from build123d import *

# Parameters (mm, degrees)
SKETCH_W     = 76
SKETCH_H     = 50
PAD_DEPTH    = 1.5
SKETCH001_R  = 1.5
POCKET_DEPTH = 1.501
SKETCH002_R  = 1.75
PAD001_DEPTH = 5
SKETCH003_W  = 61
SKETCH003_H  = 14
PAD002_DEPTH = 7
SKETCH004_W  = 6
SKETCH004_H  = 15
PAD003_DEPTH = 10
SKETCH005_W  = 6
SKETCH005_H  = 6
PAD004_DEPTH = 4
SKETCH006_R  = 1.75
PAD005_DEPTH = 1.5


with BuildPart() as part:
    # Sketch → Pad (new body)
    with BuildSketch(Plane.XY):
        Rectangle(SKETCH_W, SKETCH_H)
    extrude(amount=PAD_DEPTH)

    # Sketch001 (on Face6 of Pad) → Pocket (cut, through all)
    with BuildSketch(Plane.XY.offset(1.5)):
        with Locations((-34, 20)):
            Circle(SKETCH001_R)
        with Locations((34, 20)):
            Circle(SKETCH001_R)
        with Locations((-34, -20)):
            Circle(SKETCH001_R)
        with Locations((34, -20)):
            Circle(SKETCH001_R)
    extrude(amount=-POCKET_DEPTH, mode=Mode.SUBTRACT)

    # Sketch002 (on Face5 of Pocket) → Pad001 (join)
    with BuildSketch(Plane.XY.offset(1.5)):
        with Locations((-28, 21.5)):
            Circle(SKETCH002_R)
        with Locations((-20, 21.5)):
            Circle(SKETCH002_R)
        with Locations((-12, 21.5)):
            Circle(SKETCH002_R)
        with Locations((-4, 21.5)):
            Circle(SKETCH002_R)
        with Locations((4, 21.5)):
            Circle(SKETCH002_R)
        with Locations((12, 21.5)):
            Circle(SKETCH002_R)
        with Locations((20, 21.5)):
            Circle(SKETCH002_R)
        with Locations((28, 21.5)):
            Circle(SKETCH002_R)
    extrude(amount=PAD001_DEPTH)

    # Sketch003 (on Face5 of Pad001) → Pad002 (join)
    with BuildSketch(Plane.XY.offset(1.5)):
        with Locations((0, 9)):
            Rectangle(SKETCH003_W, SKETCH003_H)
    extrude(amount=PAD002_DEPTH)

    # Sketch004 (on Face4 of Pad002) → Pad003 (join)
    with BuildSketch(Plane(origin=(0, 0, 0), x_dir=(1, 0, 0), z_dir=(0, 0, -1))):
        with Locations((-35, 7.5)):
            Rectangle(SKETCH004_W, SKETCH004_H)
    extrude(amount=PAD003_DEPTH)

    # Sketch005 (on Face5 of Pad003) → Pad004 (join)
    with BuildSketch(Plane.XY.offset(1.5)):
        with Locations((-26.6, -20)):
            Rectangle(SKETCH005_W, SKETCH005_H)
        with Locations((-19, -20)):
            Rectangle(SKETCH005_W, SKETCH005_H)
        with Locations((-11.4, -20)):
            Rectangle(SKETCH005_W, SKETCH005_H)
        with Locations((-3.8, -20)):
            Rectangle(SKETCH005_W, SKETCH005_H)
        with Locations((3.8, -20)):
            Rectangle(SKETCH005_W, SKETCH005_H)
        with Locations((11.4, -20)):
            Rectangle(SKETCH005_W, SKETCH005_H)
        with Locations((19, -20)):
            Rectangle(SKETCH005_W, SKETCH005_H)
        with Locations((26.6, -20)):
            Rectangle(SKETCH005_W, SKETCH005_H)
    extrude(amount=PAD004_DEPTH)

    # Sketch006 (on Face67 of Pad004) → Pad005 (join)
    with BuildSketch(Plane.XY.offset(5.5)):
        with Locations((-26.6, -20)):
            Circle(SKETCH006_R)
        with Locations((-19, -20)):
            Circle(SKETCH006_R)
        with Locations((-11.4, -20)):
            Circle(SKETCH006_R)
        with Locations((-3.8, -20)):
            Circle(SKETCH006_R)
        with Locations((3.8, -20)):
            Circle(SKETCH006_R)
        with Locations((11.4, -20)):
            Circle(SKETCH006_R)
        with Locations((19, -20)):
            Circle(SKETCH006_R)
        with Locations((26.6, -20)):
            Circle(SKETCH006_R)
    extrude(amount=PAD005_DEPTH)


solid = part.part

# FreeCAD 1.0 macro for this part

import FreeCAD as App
import Part
import Sketcher
Q = App.Units.Quantity


def add_polygon(sketch, points):
    """Adds a closed chain of lines whose ends are joined by coincident constraints."""
    first, n = sketch.GeometryCount, len(points)
    for a, b in zip(points, points[1:] + points[:1]):
        sketch.addGeometry(Part.LineSegment(App.Vector(*a, 0), App.Vector(*b, 0)), False)
    for i in range(n):
        sketch.addConstraint(Sketcher.Constraint("Coincident", first + i, 2, first + (i + 1) % n, 1))

doc = App.newDocument("Part")
body = doc.addObject("PartDesign::Body", "Body")

# Sketch on XY plane
sketch1 = body.newObject("Sketcher::SketchObject", "Sketch")
sketch1.AttachmentSupport = (doc.getObject("XY_Plane"), [""])
sketch1.MapMode = "FlatFace"
add_polygon(sketch1, [(-38, 25), (-38, -25), (38, -25), (38, 25)])  # lines 0-3
sketch1.addConstraint([
    Sketcher.Constraint("Vertical", 0),
    Sketcher.Constraint("Horizontal", 1),
    Sketcher.Constraint("Vertical", 2),
    Sketcher.Constraint("Horizontal", 3),
    Sketcher.Constraint("Symmetric", 0, 2, 2, 2, -1, 1),
    Sketcher.Constraint("DistanceX", 1, 1, 1, 2, Q("76 mm")),
    Sketcher.Constraint("DistanceY", 0, 2, 0, 1, Q("50 mm")),
])
pad1 = body.newObject("PartDesign::Pad", "Pad")
pad1.Profile = sketch1
pad1.Length = 1.5

# Sketch on XY plane
sketch2 = body.newObject("Sketcher::SketchObject", "Sketch001")
sketch2.AttachmentSupport = (doc.getObject("XY_Plane"), [""])
sketch2.MapMode = "FlatFace"
sketch2.AttachmentOffset = App.Placement(App.Vector(0, 0, 1.5), App.Rotation())
sketch2.addGeometry([
    Part.Circle(App.Vector(-34, 20, 0), App.Vector(0, 0, 1), 1.5),
    Part.Circle(App.Vector(34, 20, 0), App.Vector(0, 0, 1), 1.5),
    Part.Circle(App.Vector(-34, -20, 0), App.Vector(0, 0, 1), 1.5),
    Part.Circle(App.Vector(34, -20, 0), App.Vector(0, 0, 1), 1.5),
], False)
sketch2.addConstraint([
    Sketcher.Constraint("Equal", 0, 1),
    Sketcher.Constraint("Equal", 1, 2),
    Sketcher.Constraint("Equal", 2, 3),
    Sketcher.Constraint("Symmetric", 1, 3, 2, 3, -1, 1),
    Sketcher.Constraint("Symmetric", 0, 3, 3, 3, -1, 1),
    Sketcher.Constraint("Symmetric", 0, 3, 1, 3, -2),
    Sketcher.Constraint("Diameter", 0, Q("3 mm")),
    Sketcher.Constraint("DistanceX", 0, 3, -1, 1, Q("34 mm")),
    Sketcher.Constraint("DistanceY", -1, 1, 0, 3, Q("20 mm")),
])
pocket1 = body.newObject("PartDesign::Pocket", "Pocket")
pocket1.Profile = sketch2
pocket1.Type = "ThroughAll"

# Sketch on XY plane
sketch3 = body.newObject("Sketcher::SketchObject", "Sketch002")
sketch3.AttachmentSupport = (doc.getObject("XY_Plane"), [""])
sketch3.MapMode = "FlatFace"
sketch3.AttachmentOffset = App.Placement(App.Vector(0, 0, 1.5), App.Rotation())
sketch3.addGeometry([
    Part.Circle(App.Vector(-28, 21.5, 0), App.Vector(0, 0, 1), 1.8),  # 0
    Part.Circle(App.Vector(-20, 21.5, 0), App.Vector(0, 0, 1), 1.8),  # 1
    Part.Circle(App.Vector(-12, 21.5, 0), App.Vector(0, 0, 1), 1.8),  # 2
    Part.Circle(App.Vector(-4, 21.5, 0), App.Vector(0, 0, 1), 1.8),  # 3
    Part.Circle(App.Vector(4, 21.5, 0), App.Vector(0, 0, 1), 1.8),  # 4
    Part.Circle(App.Vector(12, 21.5, 0), App.Vector(0, 0, 1), 1.8),  # 5
    Part.Circle(App.Vector(20, 21.5, 0), App.Vector(0, 0, 1), 1.8),  # 6
    Part.Circle(App.Vector(28, 21.5, 0), App.Vector(0, 0, 1), 1.8),  # 7
], False)
sketch3.addConstraint([
    Sketcher.Constraint("Equal", 0, 1),
    Sketcher.Constraint("Equal", 1, 2),
    Sketcher.Constraint("Equal", 2, 3),
    Sketcher.Constraint("Equal", 3, 4),
    Sketcher.Constraint("Equal", 4, 5),
    Sketcher.Constraint("Equal", 5, 6),
    Sketcher.Constraint("Equal", 6, 7),
    Sketcher.Constraint("Symmetric", 3, 3, 4, 3, -2),
    Sketcher.Constraint("Symmetric", 2, 3, 5, 3, -2),
    Sketcher.Constraint("Symmetric", 1, 3, 6, 3, -2),
    Sketcher.Constraint("Symmetric", 0, 3, 7, 3, -2),
    Sketcher.Constraint("Horizontal", 0, 3, 1, 3),
    Sketcher.Constraint("Horizontal", 1, 3, 2, 3),
    Sketcher.Constraint("Horizontal", 2, 3, 3, 3),
    Sketcher.Constraint("Diameter", 0, Q("3.5 mm")),
    Sketcher.Constraint("DistanceX", 0, 3, -1, 1, Q("28 mm")),
    Sketcher.Constraint("DistanceX", 1, 3, -1, 1, Q("20 mm")),
    Sketcher.Constraint("DistanceX", 2, 3, -1, 1, Q("12 mm")),
    Sketcher.Constraint("DistanceX", 3, 3, -1, 1, Q("4 mm")),
    Sketcher.Constraint("DistanceY", -1, 1, 0, 3, Q("21.5 mm")),
])
pad2 = body.newObject("PartDesign::Pad", "Pad001")
pad2.Profile = sketch3
pad2.Length = 5

# Sketch on XY plane
sketch4 = body.newObject("Sketcher::SketchObject", "Sketch003")
sketch4.AttachmentSupport = (doc.getObject("XY_Plane"), [""])
sketch4.MapMode = "FlatFace"
sketch4.AttachmentOffset = App.Placement(App.Vector(0, 0, 1.5), App.Rotation())
add_polygon(sketch4, [(-30, 16), (-30, 2), (30, 2), (30, 16)])  # lines 0-3
sketch4.addConstraint([
    Sketcher.Constraint("Vertical", 0),
    Sketcher.Constraint("Horizontal", 1),
    Sketcher.Constraint("Vertical", 2),
    Sketcher.Constraint("Horizontal", 3),
    Sketcher.Constraint("DistanceX", 1, 1, 1, 2, Q("61 mm")),
    Sketcher.Constraint("DistanceY", 0, 2, 0, 1, Q("14 mm")),
    Sketcher.Constraint("DistanceY", -1, 1, 0, 2, Q("2 mm")),
    Sketcher.Constraint("DistanceX", 0, 2, -1, 1, Q("30.5 mm")),
])
pad3 = body.newObject("PartDesign::Pad", "Pad002")
pad3.Profile = sketch4
pad3.Length = 7

# Sketch on XY plane
sketch5 = body.newObject("Sketcher::SketchObject", "Sketch004")
sketch5.AttachmentSupport = (doc.getObject("XY_Plane"), [""])
sketch5.MapMode = "FlatFace"
add_polygon(sketch5, [(-38, -15), (-38, 0), (-32, 0), (-32, -15)])  # lines 0-3
sketch5.addConstraint([
    Sketcher.Constraint("Vertical", 0),
    Sketcher.Constraint("Horizontal", 1),
    Sketcher.Constraint("Vertical", 2),
    Sketcher.Constraint("Horizontal", 3),
    Sketcher.Constraint("PointOnObject", 0, 2, -1),
    Sketcher.Constraint("DistanceX", 1, 1, 1, 2, Q("6 mm")),
    Sketcher.Constraint("DistanceY", 0, 1, 0, 2, Q("15 mm")),
    Sketcher.Constraint("DistanceX", 0, 2, -1, 1, Q("38 mm")),
])
pad4 = body.newObject("PartDesign::Pad", "Pad003")
pad4.Profile = sketch5
pad4.Length = 10
pad4.Reversed = True

# Sketch on XY plane
sketch6 = body.newObject("Sketcher::SketchObject", "Sketch005")
sketch6.AttachmentSupport = (doc.getObject("XY_Plane"), [""])
sketch6.MapMode = "FlatFace"
sketch6.AttachmentOffset = App.Placement(App.Vector(0, 0, 1.5), App.Rotation())
add_polygon(sketch6, [(-30, -17), (-30, -23), (-24, -23), (-24, -17)])  # lines 0-3
add_polygon(sketch6, [(-22, -17), (-22, -23), (-16, -23), (-16, -17)])  # lines 4-7
add_polygon(sketch6, [(-14, -17), (-14, -23), (-8, -23), (-8, -17)])  # lines 8-11
add_polygon(sketch6, [(-7, -17), (-7, -23), (-1, -23), (-1, -17)])  # lines 12-15
add_polygon(sketch6, [(1, -17), (1, -23), (7, -23), (7, -17)])  # lines 16-19
add_polygon(sketch6, [(8, -17), (8, -23), (14, -23), (14, -17)])  # lines 20-23
add_polygon(sketch6, [(16, -17), (16, -23), (22, -23), (22, -17)])  # lines 24-27
add_polygon(sketch6, [(24, -17), (24, -23), (30, -23), (30, -17)])  # lines 28-31
sketch6.addConstraint([
    Sketcher.Constraint("Vertical", 0),
    Sketcher.Constraint("Horizontal", 1),
    Sketcher.Constraint("Vertical", 2),
    Sketcher.Constraint("Horizontal", 3),
    Sketcher.Constraint("Vertical", 4),
    Sketcher.Constraint("Horizontal", 5),
    Sketcher.Constraint("Vertical", 6),
    Sketcher.Constraint("Horizontal", 7),
    Sketcher.Constraint("Vertical", 8),
    Sketcher.Constraint("Horizontal", 9),
    Sketcher.Constraint("Vertical", 10),
    Sketcher.Constraint("Horizontal", 11),
    Sketcher.Constraint("Vertical", 12),
    Sketcher.Constraint("Horizontal", 13),
    Sketcher.Constraint("Vertical", 14),
    Sketcher.Constraint("Horizontal", 15),
    Sketcher.Constraint("Vertical", 16),
    Sketcher.Constraint("Horizontal", 17),
    Sketcher.Constraint("Vertical", 18),
    Sketcher.Constraint("Horizontal", 19),
    Sketcher.Constraint("Vertical", 20),
    Sketcher.Constraint("Horizontal", 21),
    Sketcher.Constraint("Vertical", 22),
    Sketcher.Constraint("Horizontal", 23),
    Sketcher.Constraint("Vertical", 24),
    Sketcher.Constraint("Horizontal", 25),
    Sketcher.Constraint("Vertical", 26),
    Sketcher.Constraint("Horizontal", 27),
    Sketcher.Constraint("Vertical", 28),
    Sketcher.Constraint("Horizontal", 29),
    Sketcher.Constraint("Vertical", 30),
    Sketcher.Constraint("Horizontal", 31),
    Sketcher.Constraint("Symmetric", 13, 2, 16, 2, -2),
    Sketcher.Constraint("Symmetric", 15, 2, 18, 2, -2),
    Sketcher.Constraint("Symmetric", 9, 2, 20, 2, -2),
    Sketcher.Constraint("Symmetric", 11, 2, 22, 2, -2),
    Sketcher.Constraint("Symmetric", 5, 2, 24, 2, -2),
    Sketcher.Constraint("Symmetric", 7, 2, 26, 2, -2),
    Sketcher.Constraint("Symmetric", 1, 2, 28, 2, -2),
    Sketcher.Constraint("Symmetric", 3, 2, 30, 2, -2),
    Sketcher.Constraint("Horizontal", 1, 2, 4, 2),
    Sketcher.Constraint("Horizontal", 3, 2, 6, 2),
    Sketcher.Constraint("Horizontal", 5, 2, 8, 2),
    Sketcher.Constraint("Horizontal", 7, 2, 10, 2),
    Sketcher.Constraint("Horizontal", 9, 2, 12, 2),
    Sketcher.Constraint("Horizontal", 11, 2, 14, 2),
    Sketcher.Constraint("Equal", 3, 5),
    Sketcher.Constraint("Equal", 7, 9),
    Sketcher.Constraint("Equal", 11, 13),
    Sketcher.Constraint("Equal", 31, 0),
    Sketcher.Constraint("DistanceX", 1, 1, 1, 2, Q("6 mm")),
    Sketcher.Constraint("DistanceY", 0, 2, -1, 1, Q("23 mm")),
    Sketcher.Constraint("DistanceX", 4, 2, -1, 1, Q("22 mm")),
    Sketcher.Constraint("DistanceX", 0, 2, -1, 1, Q("29.6 mm")),
    Sketcher.Constraint("DistanceX", 8, 2, -1, 1, Q("14.4 mm")),
    Sketcher.Constraint("DistanceX", 12, 2, -1, 1, Q("6.8 mm")),
])
pad5 = body.newObject("PartDesign::Pad", "Pad004")
pad5.Profile = sketch6
pad5.Length = 4

# Sketch on XY plane
sketch7 = body.newObject("Sketcher::SketchObject", "Sketch006")
sketch7.AttachmentSupport = (doc.getObject("XY_Plane"), [""])
sketch7.MapMode = "FlatFace"
sketch7.AttachmentOffset = App.Placement(App.Vector(0, 0, 5.5), App.Rotation())
sketch7.addGeometry([
    Part.Circle(App.Vector(-26.6, -20, 0), App.Vector(0, 0, 1), 1.8),  # 0
    Part.Circle(App.Vector(-19, -20, 0), App.Vector(0, 0, 1), 1.8),  # 1
    Part.Circle(App.Vector(-11.4, -20, 0), App.Vector(0, 0, 1), 1.8),  # 2
    Part.Circle(App.Vector(-3.8, -20, 0), App.Vector(0, 0, 1), 1.8),  # 3
    Part.Circle(App.Vector(3.8, -20, 0), App.Vector(0, 0, 1), 1.8),  # 4
    Part.Circle(App.Vector(11.4, -20, 0), App.Vector(0, 0, 1), 1.8),  # 5
    Part.Circle(App.Vector(19, -20, 0), App.Vector(0, 0, 1), 1.8),  # 6
    Part.Circle(App.Vector(26.6, -20, 0), App.Vector(0, 0, 1), 1.8),  # 7
], False)
sketch7.addConstraint([
    Sketcher.Constraint("Equal", 0, 1),
    Sketcher.Constraint("Equal", 1, 2),
    Sketcher.Constraint("Equal", 2, 3),
    Sketcher.Constraint("Equal", 3, 4),
    Sketcher.Constraint("Equal", 4, 5),
    Sketcher.Constraint("Equal", 5, 6),
    Sketcher.Constraint("Equal", 6, 7),
    Sketcher.Constraint("Symmetric", 3, 3, 4, 3, -2),
    Sketcher.Constraint("Symmetric", 2, 3, 5, 3, -2),
    Sketcher.Constraint("Symmetric", 1, 3, 6, 3, -2),
    Sketcher.Constraint("Symmetric", 0, 3, 7, 3, -2),
    Sketcher.Constraint("Horizontal", 0, 3, 1, 3),
    Sketcher.Constraint("Horizontal", 1, 3, 2, 3),
    Sketcher.Constraint("Horizontal", 2, 3, 3, 3),
    Sketcher.Constraint("Diameter", 0, Q("3.5 mm")),
    Sketcher.Constraint("DistanceY", 0, 3, -1, 1, Q("20 mm")),
    Sketcher.Constraint("DistanceX", 1, 3, -1, 1, Q("19 mm")),
    Sketcher.Constraint("DistanceX", 0, 3, 5, 3, Q("38 mm")),
    Sketcher.Constraint("DistanceX", 0, 3, -1, 1, Q("26.6 mm")),
    Sketcher.Constraint("DistanceX", 3, 3, -1, 1, Q("3.8 mm")),
])
pad6 = body.newObject("PartDesign::Pad", "Pad005")
pad6.Profile = sketch7
pad6.Length = 1.5

doc.recompute()
